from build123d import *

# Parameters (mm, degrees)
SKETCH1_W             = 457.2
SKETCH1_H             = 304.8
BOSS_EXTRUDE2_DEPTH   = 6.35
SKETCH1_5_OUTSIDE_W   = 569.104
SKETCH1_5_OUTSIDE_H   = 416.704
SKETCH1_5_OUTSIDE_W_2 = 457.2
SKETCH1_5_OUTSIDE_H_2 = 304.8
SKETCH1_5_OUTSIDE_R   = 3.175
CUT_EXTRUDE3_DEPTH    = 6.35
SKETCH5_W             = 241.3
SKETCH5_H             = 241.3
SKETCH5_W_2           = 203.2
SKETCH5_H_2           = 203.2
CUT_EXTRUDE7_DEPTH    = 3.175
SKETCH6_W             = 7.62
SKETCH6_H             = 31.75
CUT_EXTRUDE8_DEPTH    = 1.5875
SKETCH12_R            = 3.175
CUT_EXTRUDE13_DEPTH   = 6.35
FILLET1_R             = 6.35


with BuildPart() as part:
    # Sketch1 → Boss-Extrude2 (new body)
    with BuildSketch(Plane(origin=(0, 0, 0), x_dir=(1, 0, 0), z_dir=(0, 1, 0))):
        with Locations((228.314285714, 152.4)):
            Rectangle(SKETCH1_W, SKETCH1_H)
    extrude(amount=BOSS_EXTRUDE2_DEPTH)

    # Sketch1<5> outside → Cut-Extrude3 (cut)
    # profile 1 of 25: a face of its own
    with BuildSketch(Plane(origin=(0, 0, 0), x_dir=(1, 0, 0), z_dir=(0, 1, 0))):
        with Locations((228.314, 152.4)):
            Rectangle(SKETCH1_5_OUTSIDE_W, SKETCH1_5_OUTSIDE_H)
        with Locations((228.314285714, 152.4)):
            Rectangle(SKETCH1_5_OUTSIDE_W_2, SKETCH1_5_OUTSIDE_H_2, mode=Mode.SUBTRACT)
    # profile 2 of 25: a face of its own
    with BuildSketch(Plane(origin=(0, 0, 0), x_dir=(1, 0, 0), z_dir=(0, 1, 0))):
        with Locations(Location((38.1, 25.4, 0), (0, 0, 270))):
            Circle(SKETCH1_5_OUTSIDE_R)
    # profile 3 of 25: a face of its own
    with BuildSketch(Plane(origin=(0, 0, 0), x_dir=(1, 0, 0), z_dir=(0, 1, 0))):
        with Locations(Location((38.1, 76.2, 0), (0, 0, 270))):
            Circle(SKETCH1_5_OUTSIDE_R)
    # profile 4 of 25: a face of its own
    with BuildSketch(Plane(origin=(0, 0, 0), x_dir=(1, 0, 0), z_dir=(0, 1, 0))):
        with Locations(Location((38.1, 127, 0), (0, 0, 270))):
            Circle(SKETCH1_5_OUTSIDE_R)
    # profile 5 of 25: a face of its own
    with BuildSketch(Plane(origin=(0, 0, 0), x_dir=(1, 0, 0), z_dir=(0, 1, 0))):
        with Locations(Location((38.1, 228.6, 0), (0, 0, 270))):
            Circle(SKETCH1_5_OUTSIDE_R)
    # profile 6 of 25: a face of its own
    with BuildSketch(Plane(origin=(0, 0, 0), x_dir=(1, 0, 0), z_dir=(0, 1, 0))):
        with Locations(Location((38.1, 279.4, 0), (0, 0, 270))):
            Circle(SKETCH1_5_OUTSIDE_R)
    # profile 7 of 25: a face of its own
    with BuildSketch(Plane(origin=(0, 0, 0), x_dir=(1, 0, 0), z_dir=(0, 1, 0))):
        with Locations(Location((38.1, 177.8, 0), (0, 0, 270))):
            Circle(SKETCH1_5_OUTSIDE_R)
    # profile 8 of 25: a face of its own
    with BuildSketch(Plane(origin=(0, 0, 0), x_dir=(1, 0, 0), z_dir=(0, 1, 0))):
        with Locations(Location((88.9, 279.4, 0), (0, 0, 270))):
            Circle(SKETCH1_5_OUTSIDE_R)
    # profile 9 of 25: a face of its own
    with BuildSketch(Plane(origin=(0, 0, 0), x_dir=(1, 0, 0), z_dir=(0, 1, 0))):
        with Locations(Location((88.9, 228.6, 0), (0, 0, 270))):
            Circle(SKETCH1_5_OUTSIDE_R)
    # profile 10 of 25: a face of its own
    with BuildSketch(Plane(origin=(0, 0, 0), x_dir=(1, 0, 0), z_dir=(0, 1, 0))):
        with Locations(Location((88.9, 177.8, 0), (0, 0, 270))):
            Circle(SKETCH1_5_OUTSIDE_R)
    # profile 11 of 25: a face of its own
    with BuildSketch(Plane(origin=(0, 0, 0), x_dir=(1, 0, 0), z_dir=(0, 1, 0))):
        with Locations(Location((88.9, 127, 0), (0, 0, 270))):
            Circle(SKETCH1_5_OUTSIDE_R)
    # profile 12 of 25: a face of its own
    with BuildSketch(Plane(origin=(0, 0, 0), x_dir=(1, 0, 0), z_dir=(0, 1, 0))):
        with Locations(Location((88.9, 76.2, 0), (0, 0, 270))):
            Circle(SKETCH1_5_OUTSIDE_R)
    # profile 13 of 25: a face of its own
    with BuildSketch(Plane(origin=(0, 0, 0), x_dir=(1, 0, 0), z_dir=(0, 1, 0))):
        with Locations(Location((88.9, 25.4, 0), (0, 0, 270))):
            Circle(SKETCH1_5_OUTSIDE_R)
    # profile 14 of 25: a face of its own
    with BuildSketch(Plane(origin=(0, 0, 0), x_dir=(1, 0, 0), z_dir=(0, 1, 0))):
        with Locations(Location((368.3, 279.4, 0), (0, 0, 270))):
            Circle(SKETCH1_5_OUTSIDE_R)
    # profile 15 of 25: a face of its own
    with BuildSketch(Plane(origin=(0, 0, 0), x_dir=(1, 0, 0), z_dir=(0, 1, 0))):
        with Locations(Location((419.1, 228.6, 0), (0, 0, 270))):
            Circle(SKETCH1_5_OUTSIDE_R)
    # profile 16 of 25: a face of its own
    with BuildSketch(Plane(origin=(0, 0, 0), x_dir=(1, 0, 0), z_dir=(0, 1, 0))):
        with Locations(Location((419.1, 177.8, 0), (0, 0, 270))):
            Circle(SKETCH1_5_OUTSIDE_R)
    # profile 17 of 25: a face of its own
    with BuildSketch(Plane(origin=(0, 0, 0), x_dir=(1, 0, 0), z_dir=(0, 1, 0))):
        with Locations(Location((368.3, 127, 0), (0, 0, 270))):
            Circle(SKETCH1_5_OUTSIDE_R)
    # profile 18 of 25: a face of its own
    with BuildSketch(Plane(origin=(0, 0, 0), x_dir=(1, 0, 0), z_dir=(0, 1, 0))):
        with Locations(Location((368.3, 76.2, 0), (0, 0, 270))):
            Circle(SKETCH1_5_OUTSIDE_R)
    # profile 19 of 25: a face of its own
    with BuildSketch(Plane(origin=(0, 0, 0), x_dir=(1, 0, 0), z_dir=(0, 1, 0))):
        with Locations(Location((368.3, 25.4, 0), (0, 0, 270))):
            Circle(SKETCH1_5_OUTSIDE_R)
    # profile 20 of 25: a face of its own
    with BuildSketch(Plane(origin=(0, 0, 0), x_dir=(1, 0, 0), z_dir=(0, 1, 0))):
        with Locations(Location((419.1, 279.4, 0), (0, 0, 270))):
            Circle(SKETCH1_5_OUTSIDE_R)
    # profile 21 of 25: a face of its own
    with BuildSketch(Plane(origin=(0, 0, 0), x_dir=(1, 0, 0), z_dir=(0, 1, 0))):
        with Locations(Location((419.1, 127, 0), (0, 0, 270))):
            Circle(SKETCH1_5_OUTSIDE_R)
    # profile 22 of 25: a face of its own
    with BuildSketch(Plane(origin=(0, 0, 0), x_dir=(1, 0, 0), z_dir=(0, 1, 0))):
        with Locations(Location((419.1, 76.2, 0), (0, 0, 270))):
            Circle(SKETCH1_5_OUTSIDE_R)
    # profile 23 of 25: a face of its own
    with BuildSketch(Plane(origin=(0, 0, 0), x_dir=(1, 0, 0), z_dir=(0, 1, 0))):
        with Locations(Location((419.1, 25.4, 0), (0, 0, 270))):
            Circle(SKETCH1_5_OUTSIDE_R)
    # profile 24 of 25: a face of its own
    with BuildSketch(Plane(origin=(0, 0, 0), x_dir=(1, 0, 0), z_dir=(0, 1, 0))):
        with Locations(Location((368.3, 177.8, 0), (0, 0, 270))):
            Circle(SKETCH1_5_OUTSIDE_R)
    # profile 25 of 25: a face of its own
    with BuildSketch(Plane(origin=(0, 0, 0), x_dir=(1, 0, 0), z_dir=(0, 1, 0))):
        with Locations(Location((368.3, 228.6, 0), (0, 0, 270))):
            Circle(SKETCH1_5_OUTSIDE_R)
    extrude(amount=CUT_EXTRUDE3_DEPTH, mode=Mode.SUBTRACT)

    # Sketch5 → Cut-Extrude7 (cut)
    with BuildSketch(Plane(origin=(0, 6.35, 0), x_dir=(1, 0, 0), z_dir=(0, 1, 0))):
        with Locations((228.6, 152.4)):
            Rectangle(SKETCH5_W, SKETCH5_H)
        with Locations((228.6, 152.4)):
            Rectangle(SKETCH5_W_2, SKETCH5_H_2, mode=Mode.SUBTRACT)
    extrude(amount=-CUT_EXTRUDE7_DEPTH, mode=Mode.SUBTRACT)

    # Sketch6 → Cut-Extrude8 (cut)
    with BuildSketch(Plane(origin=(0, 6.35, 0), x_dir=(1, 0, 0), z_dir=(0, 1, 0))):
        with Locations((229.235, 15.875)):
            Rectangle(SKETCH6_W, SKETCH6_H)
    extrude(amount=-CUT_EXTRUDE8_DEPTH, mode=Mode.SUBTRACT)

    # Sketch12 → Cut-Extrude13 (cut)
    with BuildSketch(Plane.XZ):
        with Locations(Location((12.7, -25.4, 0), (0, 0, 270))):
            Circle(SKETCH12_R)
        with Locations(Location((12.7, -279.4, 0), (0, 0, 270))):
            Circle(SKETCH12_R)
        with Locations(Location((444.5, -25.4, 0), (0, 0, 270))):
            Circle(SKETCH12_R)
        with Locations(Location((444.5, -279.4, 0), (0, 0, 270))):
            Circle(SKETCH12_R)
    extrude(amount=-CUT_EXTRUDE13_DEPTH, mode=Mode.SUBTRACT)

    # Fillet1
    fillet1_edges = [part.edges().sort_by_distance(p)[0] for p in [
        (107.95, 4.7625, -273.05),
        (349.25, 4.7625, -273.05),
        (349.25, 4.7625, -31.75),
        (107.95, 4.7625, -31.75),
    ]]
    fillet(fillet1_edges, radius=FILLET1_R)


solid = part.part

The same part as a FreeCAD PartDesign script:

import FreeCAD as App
import Part
import Sketcher
Q = App.Units.Quantity


def edges_at(feature, points):
    """Names of the edges that pass closest to the given points."""
    edges = feature.Shape.Edges
    near = lambda p: min(range(len(edges)), key=lambda i: edges[i].distToShape(Part.Vertex(*p))[0])
    return sorted({f"Edge{near(p) + 1}" for p in points})


def add_polygon(sketch, points):
    """Adds a closed chain of lines whose ends are joined by coincident constraints."""
    first, n = sketch.GeometryCount, len(points)
    for a, b in zip(points, points[1:] + points[:1]):
        sketch.addGeometry(Part.LineSegment(App.Vector(*a, 0), App.Vector(*b, 0)), False)
    for i in range(n):
        sketch.addConstraint(Sketcher.Constraint("Coincident", first + i, 2, first + (i + 1) % n, 1))

doc = App.newDocument("Part")
body = doc.addObject("PartDesign::Body", "Body")

# Sketch on XZ plane
sketch1 = body.newObject("Sketcher::SketchObject", "Sketch")
sketch1.AttachmentSupport = (doc.getObject("XZ_Plane"), [""])
sketch1.MapMode = "FlatFace"
add_polygon(sketch1, [(0, -305), (0, 0), (457, 0), (457, -305)])  # lines 0-3
sketch1.addConstraint([
    Sketcher.Constraint("Vertical", 0),
    Sketcher.Constraint("Horizontal", 1),
    Sketcher.Constraint("Vertical", 2),
    Sketcher.Constraint("Horizontal", 3),
    Sketcher.Constraint("PointOnObject", 0, 2, -1),
    Sketcher.Constraint("DistanceX", 1, 1, 1, 2, Q("18 in")),
    Sketcher.Constraint("DistanceY", 0, 1, 0, 2, Q("12 in")),
    Sketcher.Constraint("DistanceX", 0, 2, -1, 1, Q("0.285714 mm")),
])
pad1 = body.newObject("PartDesign::Pad", "Pad")
pad1.Profile = sketch1
pad1.Length = Q("0.25 in")
pad1.Reversed = True

# Sketch on XZ plane
sketch2 = body.newObject("Sketcher::SketchObject", "Sketch001")
sketch2.AttachmentSupport = (doc.getObject("XZ_Plane"), [""])
sketch2.MapMode = "FlatFace"
add_polygon(sketch2, [(-56.2, -360.8), (-56.2, 56), (512.9, 56), (512.9, -360.8)])  # lines 0-3
add_polygon(sketch2, [(456.9, 0), (-0.3, 0), (-0.3, -304.8), (456.9, -304.8)])  # lines 4-7
sketch2.addGeometry(Part.Circle(App.Vector(38.1, -25.4, 0), App.Vector(0, 0, 1), 3.2), False)  # 8
sketch2.addGeometry(Part.Circle(App.Vector(38.1, -76.2, 0), App.Vector(0, 0, 1), 3.2), False)  # 9
sketch2.addGeometry(Part.Circle(App.Vector(38.1, -127, 0), App.Vector(0, 0, 1), 3.2), False)  # 10
sketch2.addGeometry(Part.Circle(App.Vector(38.1, -228.6, 0), App.Vector(0, 0, 1), 3.2), False)  # 11
sketch2.addGeometry(Part.Circle(App.Vector(38.1, -279.4, 0), App.Vector(0, 0, 1), 3.2), False)  # 12
sketch2.addGeometry(Part.Circle(App.Vector(38.1, -177.8, 0), App.Vector(0, 0, 1), 3.2), False)  # 13
sketch2.addGeometry(Part.Circle(App.Vector(88.9, -279.4, 0), App.Vector(0, 0, 1), 3.2), False)  # 14
sketch2.addGeometry(Part.Circle(App.Vector(88.9, -228.6, 0), App.Vector(0, 0, 1), 3.2), False)  # 15
sketch2.addGeometry(Part.Circle(App.Vector(88.9, -177.8, 0), App.Vector(0, 0, 1), 3.2), False)  # 16
sketch2.addGeometry(Part.Circle(App.Vector(88.9, -127, 0), App.Vector(0, 0, 1), 3.2), False)  # 17
sketch2.addGeometry(Part.Circle(App.Vector(88.9, -76.2, 0), App.Vector(0, 0, 1), 3.2), False)  # 18
sketch2.addGeometry(Part.Circle(App.Vector(88.9, -25.4, 0), App.Vector(0, 0, 1), 3.2), False)  # 19
sketch2.addGeometry(Part.Circle(App.Vector(368.3, -279.4, 0), App.Vector(0, 0, 1), 3.2), False)  # 20
sketch2.addGeometry(Part.Circle(App.Vector(419.1, -228.6, 0), App.Vector(0, 0, 1), 3.2), False)  # 21
sketch2.addGeometry(Part.Circle(App.Vector(419.1, -177.8, 0), App.Vector(0, 0, 1), 3.2), False)  # 22
sketch2.addGeometry(Part.Circle(App.Vector(368.3, -127, 0), App.Vector(0, 0, 1), 3.2), False)  # 23
sketch2.addGeometry(Part.Circle(App.Vector(368.3, -76.2, 0), App.Vector(0, 0, 1), 3.2), False)  # 24
sketch2.addGeometry(Part.Circle(App.Vector(368.3, -25.4, 0), App.Vector(0, 0, 1), 3.2), False)  # 25
sketch2.addGeometry(Part.Circle(App.Vector(419.1, -279.4, 0), App.Vector(0, 0, 1), 3.2), False)  # 26
sketch2.addGeometry(Part.Circle(App.Vector(419.1, -127, 0), App.Vector(0, 0, 1), 3.2), False)  # 27
sketch2.addGeometry(Part.Circle(App.Vector(419.1, -76.2, 0), App.Vector(0, 0, 1), 3.2), False)  # 28
sketch2.addGeometry(Part.Circle(App.Vector(419.1, -25.4, 0), App.Vector(0, 0, 1), 3.2), False)  # 29
sketch2.addGeometry(Part.Circle(App.Vector(368.3, -177.8, 0), App.Vector(0, 0, 1), 3.2), False)  # 30
sketch2.addGeometry(Part.Circle(App.Vector(368.3, -228.6, 0), App.Vector(0, 0, 1), 3.2), False)  # 31
sketch2.addConstraint([
    Sketcher.Constraint("Vertical", 0),
    Sketcher.Constraint("Horizontal", 1),
    Sketcher.Constraint("Vertical", 2),
    Sketcher.Constraint("Horizontal", 3),
    Sketcher.Constraint("Horizontal", 4),
    Sketcher.Constraint("Vertical", 5),
    Sketcher.Constraint("Horizontal", 6),
    Sketcher.Constraint("Vertical", 7),
    Sketcher.Constraint("Equal", 8, 9),
    Sketcher.Constraint("Equal", 9, 10),
    Sketcher.Constraint("Equal", 10, 11),
    Sketcher.Constraint("Equal", 11, 12),
    Sketcher.Constraint("Equal", 12, 13),
    Sketcher.Constraint("Equal", 13, 14),
    Sketcher.Constraint("Equal", 14, 15),
    Sketcher.Constraint("Equal", 15, 16),
    Sketcher.Constraint("Equal", 16, 17),
    Sketcher.Constraint("Equal", 17, 18),
    Sketcher.Constraint("Equal", 18, 19),
    Sketcher.Constraint("Equal", 19, 20),
    Sketcher.Constraint("Equal", 20, 21),
    Sketcher.Constraint("Equal", 21, 22),
    Sketcher.Constraint("Equal", 22, 23),
    Sketcher.Constraint("Equal", 23, 24),
    Sketcher.Constraint("Equal", 24, 25),
    Sketcher.Constraint("Equal", 25, 26),
    Sketcher.Constraint("Equal", 26, 27),
    Sketcher.Constraint("Equal", 27, 28),
    Sketcher.Constraint("Equal", 28, 29),
    Sketcher.Constraint("Equal", 29, 30),
    Sketcher.Constraint("Equal", 30, 31),
    Sketcher.Constraint("PointOnObject", 4, 2, -1),
    Sketcher.Constraint("Horizontal", 12, 3, 14, 3),
    Sketcher.Constraint("Horizontal", 11, 3, 15, 3),
    Sketcher.Constraint("Horizontal", 13, 3, 16, 3),
    Sketcher.Constraint("Horizontal", 10, 3, 17, 3),
    Sketcher.Constraint("Horizontal", 9, 3, 18, 3),
    Sketcher.Constraint("Horizontal", 8, 3, 19, 3),
    Sketcher.Constraint("Horizontal", 14, 3, 20, 3),
    Sketcher.Constraint("Horizontal", 15, 3, 21, 3),
    Sketcher.Constraint("Horizontal", 16, 3, 22, 3),
    Sketcher.Constraint("Horizontal", 17, 3, 23, 3),
    Sketcher.Constraint("Horizontal", 18, 3, 24, 3),
    Sketcher.Constraint("Horizontal", 19, 3, 25, 3),
    Sketcher.Constraint("Horizontal", 20, 3, 26, 3),
    Sketcher.Constraint("Horizontal", 23, 3, 27, 3),
    Sketcher.Constraint("Horizontal", 24, 3, 28, 3),
    Sketcher.Constraint("Horizontal", 25, 3, 29, 3),
    Sketcher.Constraint("Horizontal", 22, 3, 30, 3),
    Sketcher.Constraint("Horizontal", 21, 3, 31, 3),
    Sketcher.Constraint("Vertical", 8, 3, 9, 3),
    Sketcher.Constraint("Vertical", 9, 3, 10, 3),
    Sketcher.Constraint("Vertical", 10, 3, 11, 3),
    Sketcher.Constraint("Vertical", 11, 3, 12, 3),
    Sketcher.Constraint("Vertical", 12, 3, 13, 3),
    Sketcher.Constraint("Vertical", 14, 3, 15, 3),
    Sketcher.Constraint("Vertical", 15, 3, 16, 3),
    Sketcher.Constraint("Vertical", 16, 3, 17, 3),
    Sketcher.Constraint("Vertical", 17, 3, 18, 3),
    Sketcher.Constraint("Vertical", 18, 3, 19, 3),
    Sketcher.Constraint("Vertical", 21, 3, 22, 3),
    Sketcher.Constraint("Vertical", 20, 3, 23, 3),
    Sketcher.Constraint("Vertical", 23, 3, 24, 3),
    Sketcher.Constraint("Vertical", 24, 3, 25, 3),
    Sketcher.Constraint("Vertical", 22, 3, 26, 3),
    Sketcher.Constraint("Vertical", 26, 3, 27, 3),
    Sketcher.Constraint("Vertical", 27, 3, 28, 3),
    Sketcher.Constraint("Vertical", 28, 3, 29, 3),
    Sketcher.Constraint("Vertical", 25, 3, 30, 3),
    Sketcher.Constraint("Vertical", 30, 3, 31, 3),
    Sketcher.Constraint("Diameter", 8, Q("0.25 in")),
    Sketcher.Constraint("DistanceX", 4, 2, 4, 1, Q("18 in")),
    Sketcher.Constraint("DistanceY", 5, 2, 5, 1, Q("12 in")),
    Sketcher.Constraint("DistanceY", 8, 3, -1, 1, Q("1 in")),
    Sketcher.Constraint("DistanceY", 9, 3, -1, 1, Q("3 in")),
    Sketcher.Constraint("DistanceY", 10, 3, -1, 1, Q("5 in")),
    Sketcher.Constraint("DistanceY", 11, 3, -1, 1, Q("9 in")),
    Sketcher.Constraint("DistanceY", 12, 3, -1, 1, Q("11 in")),
    Sketcher.Constraint("DistanceY", 13, 3, -1, 1, Q("7 in")),
    Sketcher.Constraint("DistanceX", 12, 3, 14, 3, Q("2 in")),
    Sketcher.Constraint("DistanceX", 14, 3, 20, 3, Q("11 in")),
    Sketcher.Constraint("DistanceX", 20, 3, 21, 3, Q("2 in")),
    Sketcher.Constraint("DistanceX", -1, 1, 8, 3, Q("1.5 in")),
    Sketcher.Constraint("DistanceX", 1, 1, 1, 2, Q("569.104 mm")),
    Sketcher.Constraint("DistanceY", 0, 1, 0, 2, Q("416.704 mm")),
    Sketcher.Constraint("DistanceX", 0, 2, -1, 1, Q("56.238 mm")),
    Sketcher.Constraint("DistanceY", -1, 1, 0, 2, Q("55.952 mm")),
    Sketcher.Constraint("DistanceX", 4, 2, -1, 1, Q("0.285714 mm")),
])
pocket1 = body.newObject("PartDesign::Pocket", "Pocket")
pocket1.Profile = sketch2
pocket1.Length = Q("0.25 in")

# Sketch on XZ plane
sketch3 = body.newObject("Sketcher::SketchObject", "Sketch002")
sketch3.AttachmentSupport = (doc.getObject("XZ_Plane"), [""])
sketch3.MapMode = "FlatFace"
sketch3.AttachmentOffset = App.Placement(App.Vector(0, 0, -0.25 * 25.4), App.Rotation())
add_polygon(sketch3, [(108, -273), (108, -32), (349, -32), (349, -273)])  # lines 0-3
add_polygon(sketch3, [(330, -51), (127, -51), (127, -254), (330, -254)])  # lines 4-7
sketch3.addConstraint([
    Sketcher.Constraint("Vertical", 0),
    Sketcher.Constraint("Horizontal", 1),
    Sketcher.Constraint("Vertical", 2),
    Sketcher.Constraint("Horizontal", 3),
    Sketcher.Constraint("Horizontal", 4),
    Sketcher.Constraint("Vertical", 5),
    Sketcher.Constraint("Horizontal", 6),
    Sketcher.Constraint("Vertical", 7),
    Sketcher.Constraint("Equal", 3, 0),
    Sketcher.Constraint("Equal", 6, 5),
    Sketcher.Constraint("DistanceX", 4, 2, 4, 1, Q("8 in")),
    Sketcher.Constraint("DistanceX", 1, 1, 1, 2, Q("9.5 in")),
    Sketcher.Constraint("DistanceX", -1, 1, 4, 2, Q("5 in")),
    Sketcher.Constraint("DistanceY", 4, 2, -1, 1, Q("2 in")),
    Sketcher.Constraint("DistanceX", -1, 1, 0, 2, Q("4.25 in")),
    Sketcher.Constraint("DistanceY", 0, 2, -1, 1, Q("1.25 in")),
])
pocket2 = body.newObject("PartDesign::Pocket", "Pocket001")
pocket2.Profile = sketch3
pocket2.Length = Q("0.125 in")
pocket2.Reversed = True

# Sketch on XZ plane
sketch4 = body.newObject("Sketcher::SketchObject", "Sketch003")
sketch4.AttachmentSupport = (doc.getObject("XZ_Plane"), [""])
sketch4.MapMode = "FlatFace"
sketch4.AttachmentOffset = App.Placement(App.Vector(0, 0, -0.25 * 25.4), App.Rotation())
add_polygon(sketch4, [(225, -32), (225, 0), (233, 0), (233, -32)])  # lines 0-3
sketch4.addConstraint([
    Sketcher.Constraint("Vertical", 0),
    Sketcher.Constraint("Horizontal", 1),
    Sketcher.Constraint("Vertical", 2),
    Sketcher.Constraint("Horizontal", 3),
    Sketcher.Constraint("PointOnObject", 0, 2, -1),
    Sketcher.Constraint("DistanceX", 1, 1, 1, 2, Q("0.3 in")),
    Sketcher.Constraint("DistanceY", 0, 1, 0, 2, Q("1.25 in")),
    Sketcher.Constraint("DistanceX", -1, 1, 0, 2, Q("8.875 in")),
])
pocket3 = body.newObject("PartDesign::Pocket", "Pocket002")
pocket3.Profile = sketch4
pocket3.Length = Q("0.0625 in")
pocket3.Reversed = True

# Sketch on XZ plane
sketch5 = body.newObject("Sketcher::SketchObject", "Sketch004")
sketch5.AttachmentSupport = (doc.getObject("XZ_Plane"), [""])
sketch5.MapMode = "FlatFace"
sketch5.addGeometry([
    Part.Circle(App.Vector(12.7, -25.4, 0), App.Vector(0, 0, 1), 3.2),
    Part.Circle(App.Vector(12.7, -279.4, 0), App.Vector(0, 0, 1), 3.2),
    Part.Circle(App.Vector(444.5, -25.4, 0), App.Vector(0, 0, 1), 3.2),
    Part.Circle(App.Vector(444.5, -279.4, 0), App.Vector(0, 0, 1), 3.2),
], False)
sketch5.addConstraint([
    Sketcher.Constraint("Equal", 0, 1),
    Sketcher.Constraint("Equal", 1, 2),
    Sketcher.Constraint("Equal", 2, 3),
    Sketcher.Constraint("Horizontal", 0, 3, 2, 3),
    Sketcher.Constraint("Horizontal", 1, 3, 3, 3),
    Sketcher.Constraint("Vertical", 0, 3, 1, 3),
    Sketcher.Constraint("Vertical", 2, 3, 3, 3),
    Sketcher.Constraint("Diameter", 0, Q("0.25 in")),
    Sketcher.Constraint("DistanceY", 0, 3, -1, 1, Q("1 in")),
    Sketcher.Constraint("DistanceY", 1, 3, -1, 1, Q("11 in")),
    Sketcher.Constraint("DistanceX", 0, 3, 2, 3, Q("17 in")),
    Sketcher.Constraint("DistanceX", -1, 1, 0, 3, Q("0.5 in")),
])
pocket4 = body.newObject("PartDesign::Pocket", "Pocket003")
pocket4.Profile = sketch5
pocket4.Length = Q("0.25 in")
doc.recompute()

fillet = body.newObject("PartDesign::Fillet", "Fillet")
fillet.Base = (pocket4, edges_at(pocket4, [
    (107.95, 4.763, -273.05),
    (349.25, 4.763, -273.05),
    (349.25, 4.763, -31.75),
    (107.95, 4.763, -31.75),
]))
fillet.Radius = Q("0.25 in")

doc.recompute()
